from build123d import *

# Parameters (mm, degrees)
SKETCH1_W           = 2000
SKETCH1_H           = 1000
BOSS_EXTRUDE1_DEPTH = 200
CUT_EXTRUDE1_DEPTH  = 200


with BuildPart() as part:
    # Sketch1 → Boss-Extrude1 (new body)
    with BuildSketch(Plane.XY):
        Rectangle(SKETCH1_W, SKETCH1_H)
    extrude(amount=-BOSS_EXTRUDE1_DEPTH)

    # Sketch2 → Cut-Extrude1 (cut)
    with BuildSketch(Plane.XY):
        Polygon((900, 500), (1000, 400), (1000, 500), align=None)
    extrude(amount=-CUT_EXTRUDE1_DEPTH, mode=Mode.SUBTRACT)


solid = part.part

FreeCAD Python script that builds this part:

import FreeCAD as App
import Part
import Sketcher


def add_polygon(sketch, points):
    """Adds a closed chain of lines whose ends are joined by coincident constraints."""
    first, n = sketch.GeometryCount, len(points)
    for a, b in zip(points, points[1:] + points[:1]):
        sketch.addGeometry(Part.LineSegment(App.Vector(*a, 0), App.Vector(*b, 0)), False)
    for i in range(n):
        sketch.addConstraint(Sketcher.Constraint("Coincident", first + i, 2, first + (i + 1) % n, 1))

doc = App.newDocument("Part")
body = doc.addObject("PartDesign::Body", "Body")

# Sketch on XY plane
sketch1 = body.newObject("Sketcher::SketchObject", "Sketch")
sketch1.AttachmentSupport = (doc.getObject("XY_Plane"), [""])
sketch1.MapMode = "FlatFace"
add_polygon(sketch1, [(-1000, 500), (-1000, -500), (1000, -500), (1000, 500)])  # lines 0-3
sketch1.addConstraint(Sketcher.Constraint("Vertical", 0))
sketch1.addConstraint(Sketcher.Constraint("Horizontal", 1))
sketch1.addConstraint(Sketcher.Constraint("Vertical", 2))
sketch1.addConstraint(Sketcher.Constraint("Horizontal", 3))
sketch1.addConstraint(Sketcher.Constraint("Symmetric", 0, 2, 2, 2, -1, 1))
sketch1.addConstraint(Sketcher.Constraint("DistanceX", 1, 1, 1, 2, 2000.0))
sketch1.addConstraint(Sketcher.Constraint("DistanceY", 0, 2, 0, 1, 1000.0))
pad1 = body.newObject("PartDesign::Pad", "Pad")
pad1.Profile = sketch1
pad1.Length = 200
pad1.Reversed = True

# Sketch on XY plane
sketch2 = body.newObject("Sketcher::SketchObject", "Sketch001")
sketch2.AttachmentSupport = (doc.getObject("XY_Plane"), [""])
sketch2.MapMode = "FlatFace"
add_polygon(sketch2, [(900, 500), (1000, 400), (1000, 500)])  # lines 0-2
sketch2.addConstraint(Sketcher.Constraint("Vertical", 1))
sketch2.addConstraint(Sketcher.Constraint("Horizontal", 2))
sketch2.addConstraint(Sketcher.Constraint("Equal", 2, 1))
sketch2.addConstraint(Sketcher.Constraint("DistanceX", 2, 2, 2, 1, 100.0))
sketch2.addConstraint(Sketcher.Constraint("DistanceX", -1, 1, 0, 2, 1000.0))
sketch2.addConstraint(Sketcher.Constraint("DistanceY", -1, 1, 0, 2, 400.0))
pocket1 = body.newObject("PartDesign::Pocket", "Pocket")
pocket1.Profile = sketch2
pocket1.Length = 200

doc.recompute()
